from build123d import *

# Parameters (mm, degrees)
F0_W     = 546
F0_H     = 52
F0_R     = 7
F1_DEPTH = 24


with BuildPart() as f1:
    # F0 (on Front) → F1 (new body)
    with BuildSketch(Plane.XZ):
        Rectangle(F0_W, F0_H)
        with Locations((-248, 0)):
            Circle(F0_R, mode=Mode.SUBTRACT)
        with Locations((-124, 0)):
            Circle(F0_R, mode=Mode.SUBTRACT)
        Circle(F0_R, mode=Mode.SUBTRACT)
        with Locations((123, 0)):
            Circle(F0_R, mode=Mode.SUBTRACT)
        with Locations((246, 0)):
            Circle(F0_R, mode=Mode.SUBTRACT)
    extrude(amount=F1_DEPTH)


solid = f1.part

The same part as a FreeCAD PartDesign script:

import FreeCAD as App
import Part
import Sketcher

V = App.Vector
Q = App.Units.Quantity

doc = App.newDocument("Part")
params = doc.addObject("Spreadsheet::Sheet", "Params")
for row, (alias, value) in enumerate([
    ("sketch1_diameter", "14 mm"),
    ("sketch1_width", "546 mm"),
    ("sketch1_height", "52 mm"),
    ("pad1_length", "24 mm"),
], start=1):
    params.set(f"A{row}", alias)
    params.set(f"B{row}", "=" + value)
    params.setAlias(f"B{row}", alias)

body = doc.addObject("PartDesign::Body", "Body")

# Sketch on XZ plane
sketch1 = body.newObject("Sketcher::SketchObject", "Sketch")
sketch1.AttachmentSupport = (doc.getObject("XZ_Plane"), [""])
sketch1.MapMode = "FlatFace"
sketch1.addGeometry([
    Part.LineSegment(V(-273, 26, 0), V(-273, -26, 0)),  # 0
    Part.LineSegment(V(-273, -26, 0), V(273, -26, 0)),  # 1
    Part.LineSegment(V(273, -26, 0), V(273, 26, 0)),  # 2
    Part.LineSegment(V(273, 26, 0), V(-273, 26, 0)),  # 3
    Part.Circle(V(-248, 0, 0), V(0, 0, 1), 7),  # 4
    Part.Circle(V(-124, 0, 0), V(0, 0, 1), 7),  # 5
    Part.Circle(V(0, 0, 0), V(0, 0, 1), 7),  # 6
    Part.Circle(V(123, 0, 0), V(0, 0, 1), 7),  # 7
    Part.Circle(V(246, 0, 0), V(0, 0, 1), 7),  # 8
], False)
sketch1.addConstraint([
    Sketcher.Constraint("Coincident", 0, 2, 1, 1),
    Sketcher.Constraint("Coincident", 1, 2, 2, 1),
    Sketcher.Constraint("Coincident", 2, 2, 3, 1),
    Sketcher.Constraint("Coincident", 3, 2, 0, 1),
    Sketcher.Constraint("Vertical", 0),
    Sketcher.Constraint("Horizontal", 1),
    Sketcher.Constraint("Vertical", 2),
    Sketcher.Constraint("Horizontal", 3),
    Sketcher.Constraint("Coincident", 6, 3, -1, 1),
    Sketcher.Constraint("Equal", 4, 5),
    Sketcher.Constraint("Equal", 5, 6),
    Sketcher.Constraint("Equal", 6, 7),
    Sketcher.Constraint("Equal", 7, 8),
    Sketcher.Constraint("Symmetric", 0, 2, 2, 2, -1, 1),
    Sketcher.Constraint("PointOnObject", 4, 3, -1),
    Sketcher.Constraint("PointOnObject", 5, 3, -1),
    Sketcher.Constraint("PointOnObject", 7, 3, -1),
    Sketcher.Constraint("PointOnObject", 8, 3, -1),
    Sketcher.Constraint("Diameter", 4, Q("14 mm")),
    Sketcher.Constraint("DistanceX", 1, 1, 1, 2, Q("546 mm")),
    Sketcher.Constraint("DistanceY", 0, 2, 0, 1, Q("52 mm")),
    Sketcher.Constraint("DistanceX", 4, 3, -1, 1, Q("248 mm")),
    Sketcher.Constraint("DistanceX", 5, 3, -1, 1, Q("124 mm")),
    Sketcher.Constraint("DistanceX", -1, 1, 7, 3, Q("123 mm")),
    Sketcher.Constraint("DistanceX", -1, 1, 8, 3, Q("246 mm")),
])
sketch1.setExpression("Constraints[18]", "Params.sketch1_diameter")
sketch1.setExpression("Constraints[19]", "Params.sketch1_width")
sketch1.setExpression("Constraints[20]", "Params.sketch1_height")
pad1 = body.newObject("PartDesign::Pad", "Pad")
pad1.Profile = sketch1
pad1.setExpression("Length", "Params.pad1_length")

doc.recompute()
